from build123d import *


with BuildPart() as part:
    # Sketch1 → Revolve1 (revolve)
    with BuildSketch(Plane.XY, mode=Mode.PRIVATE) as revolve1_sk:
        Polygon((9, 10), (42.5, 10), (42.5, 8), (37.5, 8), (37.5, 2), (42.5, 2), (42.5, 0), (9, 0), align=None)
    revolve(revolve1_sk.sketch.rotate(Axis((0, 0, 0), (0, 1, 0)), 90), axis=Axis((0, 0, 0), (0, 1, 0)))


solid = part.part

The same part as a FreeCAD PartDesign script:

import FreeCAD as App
import Part
import Sketcher
from FreeCAD import Vector
Q = App.Units.Quantity

doc = App.newDocument("Part")
body = doc.addObject("PartDesign::Body", "Body")

# Sketch on XY plane
sketch1 = body.newObject("Sketcher::SketchObject", "Sketch")
sketch1.AttachmentSupport = (doc.getObject("XY_Plane"), [""])
sketch1.MapMode = "FlatFace"
sketch1.addGeometry([
    Part.LineSegment(Vector(42.5, 10, 0), Vector(9, 10, 0)),  # 0
    Part.LineSegment(Vector(9, 10, 0), Vector(9, 0, 0)),  # 1
    Part.LineSegment(Vector(9, 0, 0), Vector(42.5, 0, 0)),  # 2
    Part.LineSegment(Vector(42.5, 0, 0), Vector(42.5, 2, 0)),  # 3
    Part.LineSegment(Vector(42.5, 2, 0), Vector(37.5, 2, 0)),  # 4
    Part.LineSegment(Vector(37.5, 2, 0), Vector(37.5, 8, 0)),  # 5
    Part.LineSegment(Vector(37.5, 8, 0), Vector(42.5, 8, 0)),  # 6
    Part.LineSegment(Vector(42.5, 8, 0), Vector(42.5, 10, 0)),  # 7
], False)
sketch1.addConstraint([
    Sketcher.Constraint("Coincident", 0, 2, 1, 1),
    Sketcher.Constraint("Coincident", 1, 2, 2, 1),
    Sketcher.Constraint("Coincident", 2, 2, 3, 1),
    Sketcher.Constraint("Coincident", 3, 2, 4, 1),
    Sketcher.Constraint("Coincident", 4, 2, 5, 1),
    Sketcher.Constraint("Coincident", 5, 2, 6, 1),
    Sketcher.Constraint("Coincident", 6, 2, 7, 1),
    Sketcher.Constraint("Coincident", 7, 2, 0, 1),
    Sketcher.Constraint("Horizontal", 0),
    Sketcher.Constraint("Vertical", 1),
    Sketcher.Constraint("Horizontal", 2),
    Sketcher.Constraint("Vertical", 3),
    Sketcher.Constraint("Horizontal", 4),
    Sketcher.Constraint("Vertical", 5),
    Sketcher.Constraint("Horizontal", 6),
    Sketcher.Constraint("Vertical", 7),
    Sketcher.Constraint("PointOnObject", 1, 2, -1),
    Sketcher.Constraint("Vertical", 3, 2, 6, 2),
    Sketcher.Constraint("Equal", 3, 7),
    Sketcher.Constraint("DistanceX", 4, 2, 4, 1, Q("5 mm")),
    Sketcher.Constraint("DistanceY", 1, 2, 1, 1, Q("10 mm")),
    Sketcher.Constraint("DistanceY", 3, 1, 3, 2, Q("2 mm")),
    Sketcher.Constraint("DistanceX", 0, 2, 0, 1, Q("33.5 mm")),
    Sketcher.Constraint("DistanceX", -1, 1, 0, 2, Q("9 mm")),
])
revolution = body.newObject("PartDesign::Revolution", "Revolution")
revolution.Profile = sketch1
revolution.ReferenceAxis = (sketch1, ["V_Axis"])
revolution.Angle = 360

doc.recompute()
